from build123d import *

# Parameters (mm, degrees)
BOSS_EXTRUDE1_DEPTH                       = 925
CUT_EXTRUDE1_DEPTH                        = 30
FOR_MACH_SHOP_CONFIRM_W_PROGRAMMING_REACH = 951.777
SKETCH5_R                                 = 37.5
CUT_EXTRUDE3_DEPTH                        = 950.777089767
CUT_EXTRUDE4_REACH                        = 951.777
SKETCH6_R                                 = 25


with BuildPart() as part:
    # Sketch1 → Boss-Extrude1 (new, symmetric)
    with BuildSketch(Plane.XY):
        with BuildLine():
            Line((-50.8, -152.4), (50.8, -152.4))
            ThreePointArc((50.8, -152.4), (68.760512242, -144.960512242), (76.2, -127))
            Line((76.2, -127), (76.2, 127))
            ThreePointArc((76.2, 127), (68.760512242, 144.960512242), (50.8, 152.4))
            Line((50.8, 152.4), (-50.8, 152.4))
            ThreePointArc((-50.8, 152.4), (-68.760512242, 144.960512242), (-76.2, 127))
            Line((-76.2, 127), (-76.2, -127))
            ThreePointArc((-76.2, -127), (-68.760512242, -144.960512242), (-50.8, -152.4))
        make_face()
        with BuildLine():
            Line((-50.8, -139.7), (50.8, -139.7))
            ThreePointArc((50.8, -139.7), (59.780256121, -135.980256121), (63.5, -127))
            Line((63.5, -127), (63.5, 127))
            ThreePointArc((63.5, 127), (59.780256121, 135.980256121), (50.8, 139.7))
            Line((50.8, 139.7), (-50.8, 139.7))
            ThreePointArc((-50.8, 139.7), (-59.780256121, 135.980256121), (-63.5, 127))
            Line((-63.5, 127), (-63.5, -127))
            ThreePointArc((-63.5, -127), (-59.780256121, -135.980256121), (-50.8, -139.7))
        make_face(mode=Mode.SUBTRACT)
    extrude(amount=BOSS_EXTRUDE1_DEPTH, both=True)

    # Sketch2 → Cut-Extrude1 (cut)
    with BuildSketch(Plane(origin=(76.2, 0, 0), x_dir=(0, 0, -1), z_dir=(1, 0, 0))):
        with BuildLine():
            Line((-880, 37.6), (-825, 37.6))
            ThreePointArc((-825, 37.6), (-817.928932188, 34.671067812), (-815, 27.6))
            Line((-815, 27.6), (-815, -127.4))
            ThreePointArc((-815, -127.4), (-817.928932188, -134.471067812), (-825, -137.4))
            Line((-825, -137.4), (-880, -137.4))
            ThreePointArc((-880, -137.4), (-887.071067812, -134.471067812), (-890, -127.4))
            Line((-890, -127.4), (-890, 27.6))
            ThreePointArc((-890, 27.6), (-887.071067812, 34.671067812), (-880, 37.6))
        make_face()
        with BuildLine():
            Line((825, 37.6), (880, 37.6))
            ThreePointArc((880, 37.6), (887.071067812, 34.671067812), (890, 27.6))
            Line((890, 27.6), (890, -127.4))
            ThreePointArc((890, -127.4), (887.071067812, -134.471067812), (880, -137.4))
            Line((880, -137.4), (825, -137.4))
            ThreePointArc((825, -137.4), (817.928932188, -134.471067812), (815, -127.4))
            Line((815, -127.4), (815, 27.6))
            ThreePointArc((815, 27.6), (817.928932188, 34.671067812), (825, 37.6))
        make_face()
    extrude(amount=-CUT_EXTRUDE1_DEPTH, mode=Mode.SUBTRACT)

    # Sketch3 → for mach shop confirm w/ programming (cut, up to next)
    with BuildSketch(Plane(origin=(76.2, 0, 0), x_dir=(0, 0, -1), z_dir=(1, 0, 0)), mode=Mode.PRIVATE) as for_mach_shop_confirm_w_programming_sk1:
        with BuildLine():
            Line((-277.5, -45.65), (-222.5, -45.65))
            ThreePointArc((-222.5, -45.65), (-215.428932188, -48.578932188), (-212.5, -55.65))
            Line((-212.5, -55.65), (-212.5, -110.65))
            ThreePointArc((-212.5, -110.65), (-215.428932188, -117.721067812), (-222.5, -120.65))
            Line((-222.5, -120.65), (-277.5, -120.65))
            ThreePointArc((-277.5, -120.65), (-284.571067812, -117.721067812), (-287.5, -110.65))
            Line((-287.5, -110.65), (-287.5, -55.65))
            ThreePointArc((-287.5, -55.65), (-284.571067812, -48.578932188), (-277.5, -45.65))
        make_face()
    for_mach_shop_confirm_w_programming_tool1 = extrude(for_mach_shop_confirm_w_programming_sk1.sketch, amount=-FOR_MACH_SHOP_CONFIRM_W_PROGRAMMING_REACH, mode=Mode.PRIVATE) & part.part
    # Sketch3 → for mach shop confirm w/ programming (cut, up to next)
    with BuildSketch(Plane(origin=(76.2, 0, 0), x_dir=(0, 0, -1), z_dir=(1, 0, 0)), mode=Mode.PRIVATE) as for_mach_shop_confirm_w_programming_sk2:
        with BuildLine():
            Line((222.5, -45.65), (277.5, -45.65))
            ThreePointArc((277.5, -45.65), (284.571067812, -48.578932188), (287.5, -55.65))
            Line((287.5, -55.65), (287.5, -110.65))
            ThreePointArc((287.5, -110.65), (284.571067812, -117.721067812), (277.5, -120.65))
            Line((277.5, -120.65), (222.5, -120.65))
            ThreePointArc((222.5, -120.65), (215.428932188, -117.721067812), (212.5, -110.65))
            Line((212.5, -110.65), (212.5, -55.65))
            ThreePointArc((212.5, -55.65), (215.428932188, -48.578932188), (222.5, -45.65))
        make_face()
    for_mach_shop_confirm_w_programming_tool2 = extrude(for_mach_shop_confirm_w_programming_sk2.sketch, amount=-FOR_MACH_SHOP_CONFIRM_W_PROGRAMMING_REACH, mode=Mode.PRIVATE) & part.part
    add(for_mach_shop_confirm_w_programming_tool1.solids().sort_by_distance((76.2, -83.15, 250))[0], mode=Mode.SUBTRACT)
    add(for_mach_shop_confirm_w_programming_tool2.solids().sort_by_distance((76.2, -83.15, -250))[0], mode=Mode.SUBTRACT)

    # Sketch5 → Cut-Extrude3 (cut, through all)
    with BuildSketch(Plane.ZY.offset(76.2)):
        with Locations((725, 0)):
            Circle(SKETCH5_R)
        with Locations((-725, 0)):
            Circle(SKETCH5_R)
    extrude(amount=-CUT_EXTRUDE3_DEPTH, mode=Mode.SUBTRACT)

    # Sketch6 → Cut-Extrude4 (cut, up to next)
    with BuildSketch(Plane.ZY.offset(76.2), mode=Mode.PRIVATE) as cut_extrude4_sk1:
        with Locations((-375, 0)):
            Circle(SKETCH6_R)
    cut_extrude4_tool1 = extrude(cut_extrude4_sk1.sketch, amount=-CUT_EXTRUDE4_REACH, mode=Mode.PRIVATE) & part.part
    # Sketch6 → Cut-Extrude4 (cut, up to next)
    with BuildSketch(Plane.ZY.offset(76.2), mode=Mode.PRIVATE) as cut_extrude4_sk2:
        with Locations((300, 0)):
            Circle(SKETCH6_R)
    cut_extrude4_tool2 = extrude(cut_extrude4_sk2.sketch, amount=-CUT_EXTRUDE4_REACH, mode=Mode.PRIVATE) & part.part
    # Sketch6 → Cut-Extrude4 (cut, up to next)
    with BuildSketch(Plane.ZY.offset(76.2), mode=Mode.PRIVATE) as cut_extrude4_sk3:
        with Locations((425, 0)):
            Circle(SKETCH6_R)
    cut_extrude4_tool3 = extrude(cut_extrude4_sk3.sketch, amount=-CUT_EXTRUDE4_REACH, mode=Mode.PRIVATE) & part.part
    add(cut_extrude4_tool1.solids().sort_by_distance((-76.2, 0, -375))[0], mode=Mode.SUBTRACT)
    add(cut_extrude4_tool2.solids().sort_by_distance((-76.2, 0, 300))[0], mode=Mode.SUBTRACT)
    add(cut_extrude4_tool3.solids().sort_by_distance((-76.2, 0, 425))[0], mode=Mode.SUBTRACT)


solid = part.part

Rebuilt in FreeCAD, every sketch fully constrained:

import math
import FreeCAD as App
import Part
import Sketcher

doc = App.newDocument("Part")
params = doc.addObject("Spreadsheet::Sheet", "Params")
for row, (alias, value) in enumerate([
    ("sketch1_radius", "25.4 mm"),
    ("sketch1_radius2", "12.7 mm"),
    ("sketch1_height", "254 mm"),
    ("sketch1_width", "101.6 mm"),
    ("pad1_length", "1850 mm"),
    ("sketch2_radius", "10 mm"),
    ("sketch2_width", "155 mm"),
    ("sketch2_height", "55 mm"),
    ("pocket1_length", "30 mm"),
    ("sketch3_radius", "10 mm"),
    ("sketch3_width", "55 mm"),
    ("sketch4_radius", "10 mm"),
    ("sketch4_width", "55 mm"),
    ("sketch5_diameter", "75 mm"),
    ("sketch6_diameter", "50 mm"),
    ("sketch7_diameter", "50 mm"),
    ("sketch8_diameter", "50 mm"),
], start=1):
    params.set(f"A{row}", alias)
    params.set(f"B{row}", "=" + value)
    params.setAlias(f"B{row}", alias)

body = doc.addObject("PartDesign::Body", "Body")

sketch1 = body.newObject("Sketcher::SketchObject", "Sketch")
sketch1.AttachmentSupport = (doc.getObject("XY_Plane"), [""])
sketch1.MapMode = "FlatFace"
sketch1.addGeometry([
    Part.LineSegment(App.Vector(-50.8, -152.4, 0), App.Vector(50.8, -152.4, 0)),
    Part.ArcOfCircle(Part.Circle(App.Vector(50.8, -127, 0), App.Vector(0, 0, 1), 25.4), math.radians(-90), math.radians(0)),
    Part.LineSegment(App.Vector(76.2, -127, 0), App.Vector(76.2, 127, 0)),
    Part.ArcOfCircle(Part.Circle(App.Vector(50.8, 127, 0), App.Vector(0, 0, 1), 25.4), math.radians(0), math.radians(90)),
    Part.LineSegment(App.Vector(50.8, 152.4, 0), App.Vector(-50.8, 152.4, 0)),
    Part.ArcOfCircle(Part.Circle(App.Vector(-50.8, 127, 0), App.Vector(0, 0, 1), 25.4), math.radians(90), math.radians(180)),
    Part.LineSegment(App.Vector(-76.2, 127, 0), App.Vector(-76.2, -127, 0)),
    Part.ArcOfCircle(Part.Circle(App.Vector(-50.8, -127, 0), App.Vector(0, 0, 1), 25.4), math.radians(180), math.radians(270)),
    Part.LineSegment(App.Vector(50.8, -139.7, 0), App.Vector(-50.8, -139.7, 0)),
    Part.ArcOfCircle(Part.Circle(App.Vector(-50.8, -127, 0), App.Vector(0, 0, 1), 12.7), math.radians(180), math.radians(270)),
    Part.LineSegment(App.Vector(-63.5, -127, 0), App.Vector(-63.5, 127, 0)),
    Part.ArcOfCircle(Part.Circle(App.Vector(-50.8, 127, 0), App.Vector(0, 0, 1), 12.7), math.radians(90), math.radians(180)),
    Part.LineSegment(App.Vector(-50.8, 139.7, 0), App.Vector(50.8, 139.7, 0)),
    Part.ArcOfCircle(Part.Circle(App.Vector(50.8, 127, 0), App.Vector(0, 0, 1), 12.7), math.radians(0), math.radians(90)),
    Part.LineSegment(App.Vector(63.5, 127, 0), App.Vector(63.5, -127, 0)),
    Part.ArcOfCircle(Part.Circle(App.Vector(50.8, -127, 0), App.Vector(0, 0, 1), 12.7), math.radians(-90), math.radians(0)),
], False)
sketch1.addConstraint([
    Sketcher.Constraint("Tangent", 0, 2, 1, 1),
    Sketcher.Constraint("Tangent", 1, 2, 2, 1),
    Sketcher.Constraint("Tangent", 2, 2, 3, 1),
    Sketcher.Constraint("Tangent", 3, 2, 4, 1),
    Sketcher.Constraint("Tangent", 4, 2, 5, 1),
    Sketcher.Constraint("Tangent", 5, 2, 6, 1),
    Sketcher.Constraint("Tangent", 6, 2, 7, 1),
    Sketcher.Constraint("Tangent", 7, 2, 0, 1),
    Sketcher.Constraint("Tangent", 8, 2, 9, 2),
    Sketcher.Constraint("Tangent", 9, 1, 10, 1),
    Sketcher.Constraint("Tangent", 10, 2, 11, 2),
    Sketcher.Constraint("Tangent", 11, 1, 12, 1),
    Sketcher.Constraint("Tangent", 12, 2, 13, 2),
    Sketcher.Constraint("Tangent", 13, 1, 14, 1),
    Sketcher.Constraint("Tangent", 14, 2, 15, 2),
    Sketcher.Constraint("Tangent", 15, 1, 8, 1),
    Sketcher.Constraint("Horizontal", 0),
    Sketcher.Constraint("Vertical", 2),
    Sketcher.Constraint("Horizontal", 4),
    Sketcher.Constraint("Vertical", 6),
    Sketcher.Constraint("Horizontal", 8),
    Sketcher.Constraint("Vertical", 10),
    Sketcher.Constraint("Horizontal", 12),
    Sketcher.Constraint("Vertical", 14),
    Sketcher.Constraint("Coincident", 9, 3, 7, 3),
    Sketcher.Constraint("Coincident", 11, 3, 5, 3),
    Sketcher.Constraint("Coincident", 13, 3, 3, 3),
    Sketcher.Constraint("Equal", 1, 3),
    Sketcher.Constraint("Equal", 3, 5),
    Sketcher.Constraint("Equal", 5, 7),
    Sketcher.Constraint("Equal", 13, 15),
    Sketcher.Constraint("Symmetric", 1, 3, 5, 3, -1, 1),
    Sketcher.Constraint("Radius", 1, 25.4),
    Sketcher.Constraint("Radius", 9, 12.7),
    Sketcher.Constraint("DistanceY", 2, 1, 2, 2, 254.0),
    Sketcher.Constraint("DistanceX", 0, 1, 0, 2, 101.6),
])
sketch1.setExpression("Constraints[32]", "Params.sketch1_radius")
sketch1.setExpression("Constraints[33]", "Params.sketch1_radius2")
sketch1.setExpression("Constraints[34]", "Params.sketch1_height")
sketch1.setExpression("Constraints[35]", "Params.sketch1_width")
pad1 = body.newObject("PartDesign::Pad", "Pad")
pad1.Profile = sketch1
pad1.setExpression("Length", "Params.pad1_length")
pad1.Midplane = True

sketch2 = body.newObject("Sketcher::SketchObject", "Sketch001")
sketch2.AttachmentSupport = (doc.getObject("YZ_Plane"), [""])
sketch2.MapMode = "FlatFace"
sketch2.AttachmentOffset = App.Placement(App.Vector(0, 0, 76.2), App.Rotation())
sketch2.addGeometry([
    Part.LineSegment(App.Vector(37.6, 825, 0), App.Vector(37.6, 880, 0)),
    Part.ArcOfCircle(Part.Circle(App.Vector(27.6, 880, 0), App.Vector(0, 0, 1), 10), math.radians(0), math.radians(90)),
    Part.LineSegment(App.Vector(27.6, 890, 0), App.Vector(-127.4, 890, 0)),
    Part.ArcOfCircle(Part.Circle(App.Vector(-127.4, 880, 0), App.Vector(0, 0, 1), 10), math.radians(90), math.radians(180)),
    Part.LineSegment(App.Vector(-137.4, 880, 0), App.Vector(-137.4, 825, 0)),
    Part.ArcOfCircle(Part.Circle(App.Vector(-127.4, 825, 0), App.Vector(0, 0, 1), 10), math.radians(180), math.radians(270)),
    Part.LineSegment(App.Vector(-127.4, 815, 0), App.Vector(27.6, 815, 0)),
    Part.ArcOfCircle(Part.Circle(App.Vector(27.6, 825, 0), App.Vector(0, 0, 1), 10), math.radians(-90), math.radians(0)),
    Part.LineSegment(App.Vector(37.6, -880, 0), App.Vector(37.6, -825, 0)),
    Part.ArcOfCircle(Part.Circle(App.Vector(27.6, -825, 0), App.Vector(0, 0, 1), 10), math.radians(0), math.radians(90)),
    Part.LineSegment(App.Vector(27.6, -815, 0), App.Vector(-127.4, -815, 0)),
    Part.ArcOfCircle(Part.Circle(App.Vector(-127.4, -825, 0), App.Vector(0, 0, 1), 10), math.radians(90), math.radians(180)),
    Part.LineSegment(App.Vector(-137.4, -825, 0), App.Vector(-137.4, -880, 0)),
    Part.ArcOfCircle(Part.Circle(App.Vector(-127.4, -880, 0), App.Vector(0, 0, 1), 10), math.radians(180), math.radians(270)),
    Part.LineSegment(App.Vector(-127.4, -890, 0), App.Vector(27.6, -890, 0)),
    Part.ArcOfCircle(Part.Circle(App.Vector(27.6, -880, 0), App.Vector(0, 0, 1), 10), math.radians(-90), math.radians(0)),
], False)
sketch2.addConstraint([
    Sketcher.Constraint("Tangent", 0, 2, 1, 1),
    Sketcher.Constraint("Tangent", 1, 2, 2, 1),
    Sketcher.Constraint("Tangent", 2, 2, 3, 1),
    Sketcher.Constraint("Tangent", 3, 2, 4, 1),
    Sketcher.Constraint("Tangent", 4, 2, 5, 1),
    Sketcher.Constraint("Tangent", 5, 2, 6, 1),
    Sketcher.Constraint("Tangent", 6, 2, 7, 1),
    Sketcher.Constraint("Tangent", 7, 2, 0, 1),
    Sketcher.Constraint("Tangent", 8, 2, 9, 1),
    Sketcher.Constraint("Tangent", 9, 2, 10, 1),
    Sketcher.Constraint("Tangent", 10, 2, 11, 1),
    Sketcher.Constraint("Tangent", 11, 2, 12, 1),
    Sketcher.Constraint("Tangent", 12, 2, 13, 1),
    Sketcher.Constraint("Tangent", 13, 2, 14, 1),
    Sketcher.Constraint("Tangent", 14, 2, 15, 1),
    Sketcher.Constraint("Tangent", 15, 2, 8, 1),
    Sketcher.Constraint("Vertical", 0),
    Sketcher.Constraint("Horizontal", 2),
    Sketcher.Constraint("Vertical", 4),
    Sketcher.Constraint("Horizontal", 6),
    Sketcher.Constraint("Vertical", 8),
    Sketcher.Constraint("Horizontal", 10),
    Sketcher.Constraint("Vertical", 12),
    Sketcher.Constraint("Horizontal", 14),
    Sketcher.Constraint("Equal", 1, 3),
    Sketcher.Constraint("Equal", 3, 5),
    Sketcher.Constraint("Equal", 5, 7),
    Sketcher.Constraint("Equal", 7, 9),
    Sketcher.Constraint("Equal", 9, 11),
    Sketcher.Constraint("Equal", 11, 13),
    Sketcher.Constraint("Equal", 13, 15),
    Sketcher.Constraint("Symmetric", 7, 3, 9, 3, -1),
    Sketcher.Constraint("Symmetric", 3, 3, 13, 3, -1),
    Sketcher.Constraint("Radius", 1, 10.0),
    Sketcher.Constraint("DistanceX", 2, 2, 2, 1, 155.0),
    Sketcher.Constraint("DistanceY", 0, 1, 0, 2, 55.0),
    Sketcher.Constraint("DistanceY", -1, 1, 1, 3, 880.0),
    Sketcher.Constraint("DistanceX", -1, 1, 1, 3, 27.6),
])
sketch2.setExpression("Constraints[33]", "Params.sketch2_radius")
sketch2.setExpression("Constraints[34]", "Params.sketch2_width")
sketch2.setExpression("Constraints[35]", "Params.sketch2_height")
pocket1 = body.newObject("PartDesign::Pocket", "Pocket")
pocket1.Profile = sketch2
pocket1.setExpression("Length", "Params.pocket1_length")

sketch3 = body.newObject("Sketcher::SketchObject", "Sketch002")
sketch3.AttachmentSupport = (doc.getObject("YZ_Plane"), [""])
sketch3.MapMode = "FlatFace"
sketch3.AttachmentOffset = App.Placement(App.Vector(0, 0, 76.2), App.Rotation())
sketch3.addGeometry([
    Part.LineSegment(App.Vector(-45.65, 222.5, 0), App.Vector(-45.65, 277.5, 0)),
    Part.ArcOfCircle(Part.Circle(App.Vector(-55.65, 277.5, 0), App.Vector(0, 0, 1), 10), math.radians(0), math.radians(90)),
    Part.LineSegment(App.Vector(-55.65, 287.5, 0), App.Vector(-110.65, 287.5, 0)),
    Part.ArcOfCircle(Part.Circle(App.Vector(-110.65, 277.5, 0), App.Vector(0, 0, 1), 10), math.radians(90), math.radians(180)),
    Part.LineSegment(App.Vector(-120.65, 277.5, 0), App.Vector(-120.65, 222.5, 0)),
    Part.ArcOfCircle(Part.Circle(App.Vector(-110.65, 222.5, 0), App.Vector(0, 0, 1), 10), math.radians(180), math.radians(270)),
    Part.LineSegment(App.Vector(-110.65, 212.5, 0), App.Vector(-55.65, 212.5, 0)),
    Part.ArcOfCircle(Part.Circle(App.Vector(-55.65, 222.5, 0), App.Vector(0, 0, 1), 10), math.radians(-90), math.radians(0)),
], False)
sketch3.addConstraint([
    Sketcher.Constraint("Tangent", 0, 2, 1, 1),
    Sketcher.Constraint("Tangent", 1, 2, 2, 1),
    Sketcher.Constraint("Tangent", 2, 2, 3, 1),
    Sketcher.Constraint("Tangent", 3, 2, 4, 1),
    Sketcher.Constraint("Tangent", 4, 2, 5, 1),
    Sketcher.Constraint("Tangent", 5, 2, 6, 1),
    Sketcher.Constraint("Tangent", 6, 2, 7, 1),
    Sketcher.Constraint("Tangent", 7, 2, 0, 1),
    Sketcher.Constraint("Vertical", 0),
    Sketcher.Constraint("Horizontal", 2),
    Sketcher.Constraint("Vertical", 4),
    Sketcher.Constraint("Horizontal", 6),
    Sketcher.Constraint("Equal", 1, 3),
    Sketcher.Constraint("Equal", 3, 5),
    Sketcher.Constraint("Equal", 5, 7),
    Sketcher.Constraint("Equal", 6, 0),
    Sketcher.Constraint("Radius", 1, 10.0),
    Sketcher.Constraint("DistanceX", 2, 2, 2, 1, 55.0),
    Sketcher.Constraint("DistanceY", -1, 1, 1, 3, 277.5),
    Sketcher.Constraint("DistanceX", 1, 3, -1, 1, 55.65),
])
sketch3.setExpression("Constraints[16]", "Params.sketch3_radius")
sketch3.setExpression("Constraints[17]", "Params.sketch3_width")
pocket2 = body.newObject("PartDesign::Pocket", "Pocket001")
pocket2.Profile = sketch3
pocket2.Type = "UpToFirst"

sketch4 = body.newObject("Sketcher::SketchObject", "Sketch003")
sketch4.AttachmentSupport = (doc.getObject("YZ_Plane"), [""])
sketch4.MapMode = "FlatFace"
sketch4.AttachmentOffset = App.Placement(App.Vector(0, 0, 76.2), App.Rotation())
sketch4.addGeometry([
    Part.LineSegment(App.Vector(-45.65, -277.5, 0), App.Vector(-45.65, -222.5, 0)),
    Part.ArcOfCircle(Part.Circle(App.Vector(-55.65, -222.5, 0), App.Vector(0, 0, 1), 10), math.radians(0), math.radians(90)),
    Part.LineSegment(App.Vector(-55.65, -212.5, 0), App.Vector(-110.65, -212.5, 0)),
    Part.ArcOfCircle(Part.Circle(App.Vector(-110.65, -222.5, 0), App.Vector(0, 0, 1), 10), math.radians(90), math.radians(180)),
    Part.LineSegment(App.Vector(-120.65, -222.5, 0), App.Vector(-120.65, -277.5, 0)),
    Part.ArcOfCircle(Part.Circle(App.Vector(-110.65, -277.5, 0), App.Vector(0, 0, 1), 10), math.radians(180), math.radians(270)),
    Part.LineSegment(App.Vector(-110.65, -287.5, 0), App.Vector(-55.65, -287.5, 0)),
    Part.ArcOfCircle(Part.Circle(App.Vector(-55.65, -277.5, 0), App.Vector(0, 0, 1), 10), math.radians(-90), math.radians(0)),
], False)
sketch4.addConstraint([
    Sketcher.Constraint("Tangent", 0, 2, 1, 1),
    Sketcher.Constraint("Tangent", 1, 2, 2, 1),
    Sketcher.Constraint("Tangent", 2, 2, 3, 1),
    Sketcher.Constraint("Tangent", 3, 2, 4, 1),
    Sketcher.Constraint("Tangent", 4, 2, 5, 1),
    Sketcher.Constraint("Tangent", 5, 2, 6, 1),
    Sketcher.Constraint("Tangent", 6, 2, 7, 1),
    Sketcher.Constraint("Tangent", 7, 2, 0, 1),
    Sketcher.Constraint("Vertical", 0),
    Sketcher.Constraint("Horizontal", 2),
    Sketcher.Constraint("Vertical", 4),
    Sketcher.Constraint("Horizontal", 6),
    Sketcher.Constraint("Equal", 1, 3),
    Sketcher.Constraint("Equal", 3, 5),
    Sketcher.Constraint("Equal", 5, 7),
    Sketcher.Constraint("Equal", 6, 0),
    Sketcher.Constraint("Radius", 1, 10.0),
    Sketcher.Constraint("DistanceX", 2, 2, 2, 1, 55.0),
    Sketcher.Constraint("DistanceY", 1, 3, -1, 1, 222.5),
    Sketcher.Constraint("DistanceX", 1, 3, -1, 1, 55.65),
])
sketch4.setExpression("Constraints[16]", "Params.sketch4_radius")
sketch4.setExpression("Constraints[17]", "Params.sketch4_width")
pocket3 = body.newObject("PartDesign::Pocket", "Pocket002")
pocket3.Profile = sketch4
pocket3.Type = "UpToFirst"

sketch5 = body.newObject("Sketcher::SketchObject", "Sketch004")
sketch5.AttachmentSupport = (doc.getObject("YZ_Plane"), [""])
sketch5.MapMode = "FlatFace"
sketch5.AttachmentOffset = App.Placement(App.Vector(0, 0, -76.2), App.Rotation())
sketch5.addGeometry([
    Part.Circle(App.Vector(0, 725, 0), App.Vector(0, 0, 1), 37.5),
    Part.Circle(App.Vector(0, -725, 0), App.Vector(0, 0, 1), 37.5),
], False)
sketch5.addConstraint([
    Sketcher.Constraint("Equal", 0, 1),
    Sketcher.Constraint("Symmetric", 0, 3, 1, 3, -1, 1),
    Sketcher.Constraint("PointOnObject", 0, 3, -2),
    Sketcher.Constraint("Diameter", 0, 75.0),
    Sketcher.Constraint("DistanceY", -1, 1, 0, 3, 725.0),
])
sketch5.setExpression("Constraints[3]", "Params.sketch5_diameter")
pocket4 = body.newObject("PartDesign::Pocket", "Pocket003")
pocket4.Profile = sketch5
pocket4.Type = "ThroughAll"
pocket4.Reversed = True

sketch6 = body.newObject("Sketcher::SketchObject", "Sketch005")
sketch6.AttachmentSupport = (doc.getObject("YZ_Plane"), [""])
sketch6.MapMode = "FlatFace"
sketch6.AttachmentOffset = App.Placement(App.Vector(0, 0, -76.2), App.Rotation())
sketch6.addGeometry(Part.Circle(App.Vector(0, -375, 0), App.Vector(0, 0, 1), 25), False)
sketch6.addConstraint([
    Sketcher.Constraint("PointOnObject", 0, 3, -2),
    Sketcher.Constraint("Diameter", 0, 50.0),
    Sketcher.Constraint("DistanceY", 0, 3, -1, 1, 375.0),
])
sketch6.setExpression("Constraints[1]", "Params.sketch6_diameter")
pocket5 = body.newObject("PartDesign::Pocket", "Pocket004")
pocket5.Profile = sketch6
pocket5.Type = "UpToFirst"
pocket5.Reversed = True

sketch7 = body.newObject("Sketcher::SketchObject", "Sketch006")
sketch7.AttachmentSupport = (doc.getObject("YZ_Plane"), [""])
sketch7.MapMode = "FlatFace"
sketch7.AttachmentOffset = App.Placement(App.Vector(0, 0, -76.2), App.Rotation())
sketch7.addGeometry(Part.Circle(App.Vector(0, 300, 0), App.Vector(0, 0, 1), 25), False)
sketch7.addConstraint([
    Sketcher.Constraint("PointOnObject", 0, 3, -2),
    Sketcher.Constraint("Diameter", 0, 50.0),
    Sketcher.Constraint("DistanceY", -1, 1, 0, 3, 300.0),
])
sketch7.setExpression("Constraints[1]", "Params.sketch7_diameter")
pocket6 = body.newObject("PartDesign::Pocket", "Pocket005")
pocket6.Profile = sketch7
pocket6.Type = "UpToFirst"
pocket6.Reversed = True

sketch8 = body.newObject("Sketcher::SketchObject", "Sketch007")
sketch8.AttachmentSupport = (doc.getObject("YZ_Plane"), [""])
sketch8.MapMode = "FlatFace"
sketch8.AttachmentOffset = App.Placement(App.Vector(0, 0, -76.2), App.Rotation())
sketch8.addGeometry(Part.Circle(App.Vector(0, 425, 0), App.Vector(0, 0, 1), 25), False)
sketch8.addConstraint([
    Sketcher.Constraint("PointOnObject", 0, 3, -2),
    Sketcher.Constraint("Diameter", 0, 50.0),
    Sketcher.Constraint("DistanceY", -1, 1, 0, 3, 425.0),
])
sketch8.setExpression("Constraints[1]", "Params.sketch8_diameter")
pocket7 = body.newObject("PartDesign::Pocket", "Pocket006")
pocket7.Profile = sketch8
pocket7.Type = "UpToFirst"
pocket7.Reversed = True

doc.recompute()
